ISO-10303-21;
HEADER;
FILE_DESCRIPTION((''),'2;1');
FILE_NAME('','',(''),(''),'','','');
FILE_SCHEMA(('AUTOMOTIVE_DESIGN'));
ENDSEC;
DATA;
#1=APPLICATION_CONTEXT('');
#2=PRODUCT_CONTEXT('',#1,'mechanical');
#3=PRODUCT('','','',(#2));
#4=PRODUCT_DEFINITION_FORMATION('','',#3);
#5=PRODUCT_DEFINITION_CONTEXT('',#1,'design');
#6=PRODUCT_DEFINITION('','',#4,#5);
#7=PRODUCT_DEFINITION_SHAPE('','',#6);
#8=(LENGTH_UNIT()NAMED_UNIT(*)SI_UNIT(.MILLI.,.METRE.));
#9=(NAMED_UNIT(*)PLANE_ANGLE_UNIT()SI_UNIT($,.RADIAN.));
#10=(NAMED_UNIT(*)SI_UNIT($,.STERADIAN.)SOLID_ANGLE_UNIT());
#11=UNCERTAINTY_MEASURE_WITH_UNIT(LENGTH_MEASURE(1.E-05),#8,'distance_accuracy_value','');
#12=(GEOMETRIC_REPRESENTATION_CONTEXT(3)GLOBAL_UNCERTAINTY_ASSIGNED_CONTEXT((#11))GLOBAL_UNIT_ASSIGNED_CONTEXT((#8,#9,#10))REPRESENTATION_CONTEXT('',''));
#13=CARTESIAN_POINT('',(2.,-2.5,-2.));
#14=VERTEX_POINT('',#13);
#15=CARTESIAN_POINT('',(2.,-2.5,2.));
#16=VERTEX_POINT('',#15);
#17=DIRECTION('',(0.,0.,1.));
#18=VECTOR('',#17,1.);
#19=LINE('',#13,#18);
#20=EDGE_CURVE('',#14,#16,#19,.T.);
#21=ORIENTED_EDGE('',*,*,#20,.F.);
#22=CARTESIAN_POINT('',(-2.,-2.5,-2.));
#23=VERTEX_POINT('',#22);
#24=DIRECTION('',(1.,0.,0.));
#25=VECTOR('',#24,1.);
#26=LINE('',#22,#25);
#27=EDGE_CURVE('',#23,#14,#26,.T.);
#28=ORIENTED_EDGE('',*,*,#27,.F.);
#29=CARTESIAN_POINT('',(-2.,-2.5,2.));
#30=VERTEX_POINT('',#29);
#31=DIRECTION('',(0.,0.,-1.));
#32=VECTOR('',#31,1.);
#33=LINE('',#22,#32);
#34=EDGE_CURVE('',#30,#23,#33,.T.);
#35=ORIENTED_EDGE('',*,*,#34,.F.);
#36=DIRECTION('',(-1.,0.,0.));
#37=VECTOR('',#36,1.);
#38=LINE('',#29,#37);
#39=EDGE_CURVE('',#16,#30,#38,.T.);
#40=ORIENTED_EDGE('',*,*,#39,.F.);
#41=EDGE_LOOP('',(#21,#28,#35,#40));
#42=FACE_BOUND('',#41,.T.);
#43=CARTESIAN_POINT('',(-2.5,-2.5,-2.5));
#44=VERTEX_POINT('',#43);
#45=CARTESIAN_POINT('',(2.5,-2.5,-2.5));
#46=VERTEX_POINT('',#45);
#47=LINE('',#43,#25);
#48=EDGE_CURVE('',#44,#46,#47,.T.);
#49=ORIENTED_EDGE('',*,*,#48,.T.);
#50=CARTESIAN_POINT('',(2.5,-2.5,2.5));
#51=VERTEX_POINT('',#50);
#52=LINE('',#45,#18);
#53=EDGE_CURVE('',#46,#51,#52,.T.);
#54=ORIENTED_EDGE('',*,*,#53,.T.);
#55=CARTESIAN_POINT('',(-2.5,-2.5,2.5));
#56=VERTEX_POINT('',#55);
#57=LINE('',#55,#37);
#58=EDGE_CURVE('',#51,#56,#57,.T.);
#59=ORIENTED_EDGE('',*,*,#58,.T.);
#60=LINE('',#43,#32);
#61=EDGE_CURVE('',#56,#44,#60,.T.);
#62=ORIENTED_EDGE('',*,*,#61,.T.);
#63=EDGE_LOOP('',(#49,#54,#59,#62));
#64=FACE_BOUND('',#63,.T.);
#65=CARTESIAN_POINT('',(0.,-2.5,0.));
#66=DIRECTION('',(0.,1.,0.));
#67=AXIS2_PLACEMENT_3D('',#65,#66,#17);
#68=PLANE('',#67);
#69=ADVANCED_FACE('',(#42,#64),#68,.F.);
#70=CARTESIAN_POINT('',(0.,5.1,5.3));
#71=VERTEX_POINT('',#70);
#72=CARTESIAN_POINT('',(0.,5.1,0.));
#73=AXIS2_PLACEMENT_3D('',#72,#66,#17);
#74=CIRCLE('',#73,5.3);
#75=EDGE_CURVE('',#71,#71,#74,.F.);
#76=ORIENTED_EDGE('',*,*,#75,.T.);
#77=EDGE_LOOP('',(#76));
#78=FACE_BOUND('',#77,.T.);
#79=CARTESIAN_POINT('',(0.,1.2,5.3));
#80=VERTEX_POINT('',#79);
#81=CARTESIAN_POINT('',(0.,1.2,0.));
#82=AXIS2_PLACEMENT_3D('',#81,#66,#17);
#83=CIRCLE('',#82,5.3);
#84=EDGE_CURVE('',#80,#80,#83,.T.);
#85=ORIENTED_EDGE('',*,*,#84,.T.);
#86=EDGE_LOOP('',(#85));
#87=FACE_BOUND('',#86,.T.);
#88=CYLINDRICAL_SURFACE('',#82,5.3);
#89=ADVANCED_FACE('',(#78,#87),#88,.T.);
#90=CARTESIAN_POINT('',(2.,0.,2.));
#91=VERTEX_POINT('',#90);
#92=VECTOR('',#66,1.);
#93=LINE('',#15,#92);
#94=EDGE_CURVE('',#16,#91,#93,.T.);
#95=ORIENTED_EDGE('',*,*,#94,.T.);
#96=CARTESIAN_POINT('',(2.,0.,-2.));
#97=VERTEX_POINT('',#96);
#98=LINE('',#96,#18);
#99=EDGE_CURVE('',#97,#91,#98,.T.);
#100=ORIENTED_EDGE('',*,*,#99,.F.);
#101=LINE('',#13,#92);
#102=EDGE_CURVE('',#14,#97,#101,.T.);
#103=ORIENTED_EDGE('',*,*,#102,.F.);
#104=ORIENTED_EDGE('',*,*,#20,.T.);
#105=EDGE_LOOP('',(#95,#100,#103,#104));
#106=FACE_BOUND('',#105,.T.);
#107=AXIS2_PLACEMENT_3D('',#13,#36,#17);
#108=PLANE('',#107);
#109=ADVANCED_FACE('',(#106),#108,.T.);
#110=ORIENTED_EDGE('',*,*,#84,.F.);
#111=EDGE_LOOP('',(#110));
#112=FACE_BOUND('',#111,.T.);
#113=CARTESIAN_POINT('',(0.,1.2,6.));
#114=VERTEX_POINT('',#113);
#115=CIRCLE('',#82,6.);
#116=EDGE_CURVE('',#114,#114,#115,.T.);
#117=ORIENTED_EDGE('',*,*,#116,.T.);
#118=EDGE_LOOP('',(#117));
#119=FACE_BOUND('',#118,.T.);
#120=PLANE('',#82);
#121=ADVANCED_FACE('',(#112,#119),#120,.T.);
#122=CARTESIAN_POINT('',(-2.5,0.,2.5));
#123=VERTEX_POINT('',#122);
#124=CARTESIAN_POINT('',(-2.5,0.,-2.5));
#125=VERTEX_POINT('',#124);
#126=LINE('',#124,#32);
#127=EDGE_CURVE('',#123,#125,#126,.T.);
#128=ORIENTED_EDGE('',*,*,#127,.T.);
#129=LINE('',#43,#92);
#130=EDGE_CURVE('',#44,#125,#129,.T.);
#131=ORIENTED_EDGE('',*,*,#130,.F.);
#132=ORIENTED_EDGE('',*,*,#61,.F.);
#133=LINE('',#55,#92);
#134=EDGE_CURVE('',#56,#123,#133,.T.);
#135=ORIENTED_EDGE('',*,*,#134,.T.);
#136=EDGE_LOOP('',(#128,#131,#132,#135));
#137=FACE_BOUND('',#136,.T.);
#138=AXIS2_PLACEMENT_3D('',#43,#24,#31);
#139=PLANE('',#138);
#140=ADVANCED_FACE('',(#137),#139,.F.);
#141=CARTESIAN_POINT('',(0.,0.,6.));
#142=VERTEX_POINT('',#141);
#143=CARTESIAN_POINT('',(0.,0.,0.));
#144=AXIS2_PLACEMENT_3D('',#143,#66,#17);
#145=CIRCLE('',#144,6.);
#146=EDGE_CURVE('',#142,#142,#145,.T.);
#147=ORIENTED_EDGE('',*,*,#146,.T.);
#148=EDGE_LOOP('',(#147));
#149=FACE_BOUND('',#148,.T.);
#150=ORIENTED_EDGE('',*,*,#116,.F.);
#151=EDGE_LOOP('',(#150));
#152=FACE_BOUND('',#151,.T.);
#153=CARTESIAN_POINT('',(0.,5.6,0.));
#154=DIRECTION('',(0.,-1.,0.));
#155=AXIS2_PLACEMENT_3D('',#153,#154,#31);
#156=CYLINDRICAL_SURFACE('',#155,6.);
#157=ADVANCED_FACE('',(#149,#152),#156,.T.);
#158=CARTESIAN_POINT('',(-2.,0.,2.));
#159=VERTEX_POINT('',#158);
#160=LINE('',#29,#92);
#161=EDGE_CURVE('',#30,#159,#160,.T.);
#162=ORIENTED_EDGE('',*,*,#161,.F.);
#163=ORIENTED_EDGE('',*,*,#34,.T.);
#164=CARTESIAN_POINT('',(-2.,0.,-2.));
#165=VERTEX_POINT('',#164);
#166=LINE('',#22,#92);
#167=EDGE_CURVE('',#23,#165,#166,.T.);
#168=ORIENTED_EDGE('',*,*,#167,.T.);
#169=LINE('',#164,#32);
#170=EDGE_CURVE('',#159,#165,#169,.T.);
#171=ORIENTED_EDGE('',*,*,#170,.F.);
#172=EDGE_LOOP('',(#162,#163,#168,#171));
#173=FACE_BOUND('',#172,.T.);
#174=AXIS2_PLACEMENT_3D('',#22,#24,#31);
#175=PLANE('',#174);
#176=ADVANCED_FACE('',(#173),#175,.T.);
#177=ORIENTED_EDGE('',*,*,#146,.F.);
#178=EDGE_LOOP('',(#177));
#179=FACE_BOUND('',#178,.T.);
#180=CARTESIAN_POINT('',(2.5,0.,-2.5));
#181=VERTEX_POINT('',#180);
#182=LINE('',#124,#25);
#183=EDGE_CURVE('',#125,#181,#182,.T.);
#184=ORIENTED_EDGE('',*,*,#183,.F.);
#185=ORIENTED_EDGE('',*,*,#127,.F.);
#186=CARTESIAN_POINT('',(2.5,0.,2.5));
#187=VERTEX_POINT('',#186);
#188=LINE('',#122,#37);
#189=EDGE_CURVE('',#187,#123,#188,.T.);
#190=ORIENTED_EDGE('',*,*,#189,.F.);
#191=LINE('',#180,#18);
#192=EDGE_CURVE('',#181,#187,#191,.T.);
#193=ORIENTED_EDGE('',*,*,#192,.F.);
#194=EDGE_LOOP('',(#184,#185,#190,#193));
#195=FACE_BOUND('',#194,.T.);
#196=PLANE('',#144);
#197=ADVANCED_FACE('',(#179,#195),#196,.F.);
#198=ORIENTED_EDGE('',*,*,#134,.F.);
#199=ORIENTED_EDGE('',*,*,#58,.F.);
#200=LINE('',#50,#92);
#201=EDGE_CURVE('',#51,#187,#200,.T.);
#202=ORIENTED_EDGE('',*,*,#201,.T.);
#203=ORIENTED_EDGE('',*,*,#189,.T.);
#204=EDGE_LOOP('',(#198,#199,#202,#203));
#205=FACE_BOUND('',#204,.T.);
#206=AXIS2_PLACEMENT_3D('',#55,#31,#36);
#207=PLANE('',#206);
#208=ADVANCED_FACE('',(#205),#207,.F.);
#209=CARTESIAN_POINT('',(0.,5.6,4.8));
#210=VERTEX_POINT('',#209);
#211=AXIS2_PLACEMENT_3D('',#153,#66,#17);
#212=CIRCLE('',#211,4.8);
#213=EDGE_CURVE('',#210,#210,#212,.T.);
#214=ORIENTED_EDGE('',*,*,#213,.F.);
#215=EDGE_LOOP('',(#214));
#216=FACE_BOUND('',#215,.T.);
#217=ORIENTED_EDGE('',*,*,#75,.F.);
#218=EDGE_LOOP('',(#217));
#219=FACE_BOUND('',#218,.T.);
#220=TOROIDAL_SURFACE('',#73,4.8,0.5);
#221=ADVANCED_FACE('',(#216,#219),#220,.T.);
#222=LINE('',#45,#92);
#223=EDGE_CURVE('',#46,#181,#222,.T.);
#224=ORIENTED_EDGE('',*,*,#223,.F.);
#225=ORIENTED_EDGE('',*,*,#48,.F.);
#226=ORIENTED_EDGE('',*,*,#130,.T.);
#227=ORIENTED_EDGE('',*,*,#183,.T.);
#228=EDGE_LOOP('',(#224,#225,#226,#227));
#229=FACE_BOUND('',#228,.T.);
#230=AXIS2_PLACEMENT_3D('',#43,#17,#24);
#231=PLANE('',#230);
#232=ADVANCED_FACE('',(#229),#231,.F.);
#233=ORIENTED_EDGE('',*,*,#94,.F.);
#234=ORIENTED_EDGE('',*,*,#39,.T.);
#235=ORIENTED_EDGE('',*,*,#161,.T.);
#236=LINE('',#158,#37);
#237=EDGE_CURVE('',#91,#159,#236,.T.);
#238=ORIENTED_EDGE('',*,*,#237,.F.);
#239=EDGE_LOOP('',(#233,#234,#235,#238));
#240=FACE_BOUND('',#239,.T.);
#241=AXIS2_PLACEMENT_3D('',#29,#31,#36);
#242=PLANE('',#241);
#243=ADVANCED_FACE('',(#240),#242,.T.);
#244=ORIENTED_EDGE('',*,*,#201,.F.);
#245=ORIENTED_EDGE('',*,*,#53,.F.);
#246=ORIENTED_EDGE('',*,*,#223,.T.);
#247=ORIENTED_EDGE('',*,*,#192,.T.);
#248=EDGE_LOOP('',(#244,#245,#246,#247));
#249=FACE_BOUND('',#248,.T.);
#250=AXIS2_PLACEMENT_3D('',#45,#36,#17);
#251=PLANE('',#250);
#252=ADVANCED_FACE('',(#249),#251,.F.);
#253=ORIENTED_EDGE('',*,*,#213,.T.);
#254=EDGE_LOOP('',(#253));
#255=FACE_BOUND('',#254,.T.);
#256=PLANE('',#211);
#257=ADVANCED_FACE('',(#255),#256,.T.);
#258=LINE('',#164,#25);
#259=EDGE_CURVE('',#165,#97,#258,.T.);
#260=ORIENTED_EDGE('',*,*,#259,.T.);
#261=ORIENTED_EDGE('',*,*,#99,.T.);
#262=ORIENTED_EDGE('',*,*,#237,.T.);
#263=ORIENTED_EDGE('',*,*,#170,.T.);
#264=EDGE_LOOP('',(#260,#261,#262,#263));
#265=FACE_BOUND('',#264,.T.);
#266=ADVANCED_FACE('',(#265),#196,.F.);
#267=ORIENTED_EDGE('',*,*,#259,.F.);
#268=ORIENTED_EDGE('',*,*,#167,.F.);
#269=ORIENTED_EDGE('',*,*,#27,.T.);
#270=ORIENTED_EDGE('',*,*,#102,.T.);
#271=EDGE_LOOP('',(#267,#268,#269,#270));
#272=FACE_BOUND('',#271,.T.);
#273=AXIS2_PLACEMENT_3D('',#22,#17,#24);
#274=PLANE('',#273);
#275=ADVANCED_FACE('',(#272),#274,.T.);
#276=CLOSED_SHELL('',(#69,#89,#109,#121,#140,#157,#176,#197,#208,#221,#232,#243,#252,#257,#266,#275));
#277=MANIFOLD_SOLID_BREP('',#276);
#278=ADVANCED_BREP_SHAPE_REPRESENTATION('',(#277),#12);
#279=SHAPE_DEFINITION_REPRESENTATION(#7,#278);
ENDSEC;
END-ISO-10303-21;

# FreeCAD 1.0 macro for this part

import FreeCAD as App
import Part
import Sketcher


def edges_at(feature, points):
    """Names of the edges that pass closest to the given points."""
    edges = feature.Shape.Edges
    near = lambda p: min(range(len(edges)), key=lambda i: edges[i].distToShape(Part.Vertex(*p))[0])
    return sorted({f"Edge{near(p) + 1}" for p in points})

doc = App.newDocument("Part")
body = doc.addObject("PartDesign::Body", "Body")

# Sketch on XZ plane
sketch1 = body.newObject("Sketcher::SketchObject", "Sketch")
sketch1.AttachmentSupport = (doc.getObject("XZ_Plane"), [""])
sketch1.MapMode = "FlatFace"
sketch1.addGeometry(Part.Circle(App.Vector(0, 0, 0), App.Vector(0, 0, 1), 6), False)
sketch1.addConstraint([
    Sketcher.Constraint("Coincident", 0, 3, -1, 1),
    Sketcher.Constraint("Diameter", 0, 12.0),
])
pad1 = body.newObject("PartDesign::Pad", "Pad")
pad1.Profile = sketch1
pad1.Length = 5.6
pad1.Reversed = True

# Sketch on XZ plane
sketch2 = body.newObject("Sketcher::SketchObject", "Sketch001")
sketch2.AttachmentSupport = (doc.getObject("XZ_Plane"), [""])
sketch2.MapMode = "FlatFace"
sketch2.AttachmentOffset = App.Placement(App.Vector(0, 0, -5.6), App.Rotation())
sketch2.addGeometry([
    Part.Circle(App.Vector(0, 0, 0), App.Vector(0, 0, 1), 6),
    Part.Circle(App.Vector(0, 0, 0), App.Vector(0, 0, 1), 5),
], False)
sketch2.addConstraint([
    Sketcher.Constraint("Coincident", 0, 3, -1, 1),
    Sketcher.Constraint("Coincident", 1, 3, -1, 1),
    Sketcher.Constraint("Diameter", 0, 12.0),
    Sketcher.Constraint("Diameter", 1, 10.6),
])
pocket1 = body.newObject("PartDesign::Pocket", "Pocket")
pocket1.Profile = sketch2
pocket1.Length = 4.4
pocket1.Reversed = True
doc.recompute()

fillet = body.newObject("PartDesign::Fillet", "Fillet")
fillet.Base = (pocket1, edges_at(pocket1, [(-5.3, 5.6, 0)]))
fillet.Radius = 0.5

# Sketch on XZ plane
sketch3 = body.newObject("Sketcher::SketchObject", "Sketch002")
sketch3.AttachmentSupport = (doc.getObject("XZ_Plane"), [""])
sketch3.MapMode = "FlatFace"
sketch3.addGeometry([
    Part.LineSegment(App.Vector(-2.5, 2.5, 0), App.Vector(-2.5, -2.5, 0)),  # 0
    Part.LineSegment(App.Vector(-2.5, -2.5, 0), App.Vector(2.5, -2.5, 0)),  # 1
    Part.LineSegment(App.Vector(2.5, -2.5, 0), App.Vector(2.5, 2.5, 0)),  # 2
    Part.LineSegment(App.Vector(2.5, 2.5, 0), App.Vector(-2.5, 2.5, 0)),  # 3
    Part.LineSegment(App.Vector(2, -2, 0), App.Vector(-2, -2, 0)),  # 4
    Part.LineSegment(App.Vector(-2, -2, 0), App.Vector(-2, 2, 0)),  # 5
    Part.LineSegment(App.Vector(-2, 2, 0), App.Vector(2, 2, 0)),  # 6
    Part.LineSegment(App.Vector(2, 2, 0), App.Vector(2, -2, 0)),  # 7
], False)
sketch3.addConstraint([
    Sketcher.Constraint("Coincident", 0, 2, 1, 1),
    Sketcher.Constraint("Coincident", 1, 2, 2, 1),
    Sketcher.Constraint("Coincident", 2, 2, 3, 1),
    Sketcher.Constraint("Coincident", 3, 2, 0, 1),
    Sketcher.Constraint("Coincident", 4, 2, 5, 1),
    Sketcher.Constraint("Coincident", 5, 2, 6, 1),
    Sketcher.Constraint("Coincident", 6, 2, 7, 1),
    Sketcher.Constraint("Coincident", 7, 2, 4, 1),
    Sketcher.Constraint("Vertical", 0),
    Sketcher.Constraint("Horizontal", 1),
    Sketcher.Constraint("Vertical", 2),
    Sketcher.Constraint("Horizontal", 3),
    Sketcher.Constraint("Horizontal", 4),
    Sketcher.Constraint("Vertical", 5),
    Sketcher.Constraint("Horizontal", 6),
    Sketcher.Constraint("Vertical", 7),
    Sketcher.Constraint("Symmetric", 0, 2, 2, 2, -1, 1),
    Sketcher.Constraint("Symmetric", 4, 2, 6, 2, -1, 1),
    Sketcher.Constraint("Equal", 3, 0),
    Sketcher.Constraint("Equal", 6, 5),
    Sketcher.Constraint("DistanceX", 1, 1, 1, 2, 5.0),
    Sketcher.Constraint("DistanceX", 4, 2, 4, 1, 4.0),
])
pad2 = body.newObject("PartDesign::Pad", "Pad001")
pad2.Profile = sketch3
pad2.Length = 2.5

doc.recompute()
